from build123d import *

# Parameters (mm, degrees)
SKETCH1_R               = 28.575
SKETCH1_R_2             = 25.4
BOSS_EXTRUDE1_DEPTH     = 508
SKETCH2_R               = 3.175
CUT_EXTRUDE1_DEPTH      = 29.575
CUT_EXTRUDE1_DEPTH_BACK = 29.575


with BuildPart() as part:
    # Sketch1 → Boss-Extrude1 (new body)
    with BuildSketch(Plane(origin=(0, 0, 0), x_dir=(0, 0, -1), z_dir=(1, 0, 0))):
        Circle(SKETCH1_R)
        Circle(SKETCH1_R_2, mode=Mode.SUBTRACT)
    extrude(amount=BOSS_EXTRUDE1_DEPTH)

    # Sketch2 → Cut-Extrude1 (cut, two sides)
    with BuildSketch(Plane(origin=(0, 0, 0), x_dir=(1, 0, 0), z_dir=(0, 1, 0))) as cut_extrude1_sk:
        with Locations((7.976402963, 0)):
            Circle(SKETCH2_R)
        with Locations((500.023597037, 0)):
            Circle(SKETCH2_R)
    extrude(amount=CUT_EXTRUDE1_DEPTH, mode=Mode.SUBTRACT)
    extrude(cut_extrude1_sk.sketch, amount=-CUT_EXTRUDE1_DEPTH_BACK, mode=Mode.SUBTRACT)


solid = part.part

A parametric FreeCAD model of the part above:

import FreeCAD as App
import Part
import Sketcher

V = App.Vector
Q = App.Units.Quantity

doc = App.newDocument("Part")
body = doc.addObject("PartDesign::Body", "Body")

# Sketch on YZ plane
sketch1 = body.newObject("Sketcher::SketchObject", "Sketch")
sketch1.AttachmentSupport = (doc.getObject("YZ_Plane"), [""])
sketch1.MapMode = "FlatFace"
sketch1.addGeometry([
    Part.Circle(V(0, 0, 0), V(0, 0, 1), 28.575),
    Part.Circle(V(0, 0, 0), V(0, 0, 1), 25.4),
], False)
sketch1.addConstraint([
    Sketcher.Constraint("Coincident", 0, 3, -1, 1),
    Sketcher.Constraint("Coincident", 1, 3, -1, 1),
    Sketcher.Constraint("Diameter", 1, Q("2 in")),
    Sketcher.Constraint("Diameter", 0, Q("2.25 in")),
])
pad1 = body.newObject("PartDesign::Pad", "Pad")
pad1.Profile = sketch1
pad1.Length = Q("20 in")

# Sketch on XZ plane
sketch2 = body.newObject("Sketcher::SketchObject", "Sketch001")
sketch2.AttachmentSupport = (doc.getObject("XZ_Plane"), [""])
sketch2.MapMode = "FlatFace"
sketch2.addGeometry([
    Part.Circle(V(7.976403, 0, 0), V(0, 0, 1), 3.175),
    Part.Circle(V(500.023597, 0, 0), V(0, 0, 1), 3.175),
], False)
sketch2.addConstraint([
    Sketcher.Constraint("Equal", 0, 1),
    Sketcher.Constraint("PointOnObject", 0, 3, -1),
    Sketcher.Constraint("PointOnObject", 1, 3, -1),
    Sketcher.Constraint("Diameter", 0, Q("0.25 in")),
    Sketcher.Constraint("DistanceX", -1, 1, 0, 3, Q("7.976403 mm")),
    Sketcher.Constraint("DistanceX", -1, 1, 1, 3, Q("500.023597 mm")),
])
pocket1 = body.newObject("PartDesign::Pocket", "Pocket")
pocket1.Profile = sketch2
pocket1.Type = "ThroughAll"
pocket1.Midplane = True

doc.recompute()
